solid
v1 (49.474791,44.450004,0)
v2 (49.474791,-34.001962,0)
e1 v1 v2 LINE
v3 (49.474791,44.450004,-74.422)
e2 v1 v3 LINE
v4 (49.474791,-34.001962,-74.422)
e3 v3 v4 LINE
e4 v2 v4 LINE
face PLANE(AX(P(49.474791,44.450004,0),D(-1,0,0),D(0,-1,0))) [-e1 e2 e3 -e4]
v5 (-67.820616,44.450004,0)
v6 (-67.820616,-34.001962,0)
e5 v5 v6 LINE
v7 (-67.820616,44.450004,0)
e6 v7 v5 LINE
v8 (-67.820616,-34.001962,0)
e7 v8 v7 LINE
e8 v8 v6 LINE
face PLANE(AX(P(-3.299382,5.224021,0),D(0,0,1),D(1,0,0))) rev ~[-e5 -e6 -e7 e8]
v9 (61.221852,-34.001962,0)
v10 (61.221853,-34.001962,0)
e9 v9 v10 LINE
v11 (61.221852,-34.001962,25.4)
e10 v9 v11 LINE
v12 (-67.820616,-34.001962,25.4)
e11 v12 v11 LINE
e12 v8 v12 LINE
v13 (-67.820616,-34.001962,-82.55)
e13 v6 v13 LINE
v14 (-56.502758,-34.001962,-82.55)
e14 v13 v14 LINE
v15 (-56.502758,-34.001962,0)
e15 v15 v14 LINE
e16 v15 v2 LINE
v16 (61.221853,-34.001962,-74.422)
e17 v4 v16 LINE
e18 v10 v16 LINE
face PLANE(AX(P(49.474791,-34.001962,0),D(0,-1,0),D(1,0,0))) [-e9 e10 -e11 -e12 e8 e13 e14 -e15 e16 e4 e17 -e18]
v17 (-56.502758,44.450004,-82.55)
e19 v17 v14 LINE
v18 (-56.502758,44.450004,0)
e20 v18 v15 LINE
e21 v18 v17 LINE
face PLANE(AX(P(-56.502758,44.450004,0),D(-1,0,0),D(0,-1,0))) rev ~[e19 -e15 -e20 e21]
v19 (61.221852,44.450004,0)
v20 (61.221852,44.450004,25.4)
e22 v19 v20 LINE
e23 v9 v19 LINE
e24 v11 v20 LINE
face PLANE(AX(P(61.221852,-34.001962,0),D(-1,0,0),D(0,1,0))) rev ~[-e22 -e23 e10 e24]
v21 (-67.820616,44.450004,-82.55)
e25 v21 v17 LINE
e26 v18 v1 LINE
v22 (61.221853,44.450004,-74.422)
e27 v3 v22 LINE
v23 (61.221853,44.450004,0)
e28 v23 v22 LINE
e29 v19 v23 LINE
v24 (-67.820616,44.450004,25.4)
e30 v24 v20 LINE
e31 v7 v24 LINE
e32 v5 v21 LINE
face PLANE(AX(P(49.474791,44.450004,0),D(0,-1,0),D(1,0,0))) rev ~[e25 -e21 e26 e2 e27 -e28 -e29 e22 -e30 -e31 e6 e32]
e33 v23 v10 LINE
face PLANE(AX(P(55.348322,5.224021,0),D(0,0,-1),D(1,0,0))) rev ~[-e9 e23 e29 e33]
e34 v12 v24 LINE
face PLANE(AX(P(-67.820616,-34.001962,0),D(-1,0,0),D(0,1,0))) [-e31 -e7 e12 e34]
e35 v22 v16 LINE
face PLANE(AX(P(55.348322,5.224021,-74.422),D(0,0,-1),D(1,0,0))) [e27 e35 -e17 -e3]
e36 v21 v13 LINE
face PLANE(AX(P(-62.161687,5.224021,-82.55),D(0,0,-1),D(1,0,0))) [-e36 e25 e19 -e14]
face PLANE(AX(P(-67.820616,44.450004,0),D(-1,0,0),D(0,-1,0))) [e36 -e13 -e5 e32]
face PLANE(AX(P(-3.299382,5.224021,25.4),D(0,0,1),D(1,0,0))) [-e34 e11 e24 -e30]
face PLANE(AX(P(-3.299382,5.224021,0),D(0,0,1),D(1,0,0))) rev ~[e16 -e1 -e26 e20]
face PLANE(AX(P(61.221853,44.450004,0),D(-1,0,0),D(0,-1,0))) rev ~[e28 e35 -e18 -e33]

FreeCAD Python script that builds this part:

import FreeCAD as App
import Part
import Sketcher

V = App.Vector
Q = App.Units.Quantity


def add_polygon(sketch, points):
    """Adds a closed chain of lines whose ends are joined by coincident constraints."""
    first, n = sketch.GeometryCount, len(points)
    for a, b in zip(points, points[1:] + points[:1]):
        sketch.addGeometry(Part.LineSegment(App.Vector(*a, 0), App.Vector(*b, 0)), False)
    for i in range(n):
        sketch.addConstraint(Sketcher.Constraint("Coincident", first + i, 2, first + (i + 1) % n, 1))

doc = App.newDocument("Part")
body = doc.addObject("PartDesign::Body", "Body")

# Sketch on XY plane
sketch1 = doc.addObject("Sketcher::SketchObject", "Sketch")
body.addObject(sketch1)
sketch1.AttachmentSupport = (doc.XY_Plane, [""])
sketch1.MapMode = "FlatFace"
add_polygon(sketch1, [(-67.820616, 44.450004), (-67.820616, -34.001962), (61.221852, -34.001962), (61.221852, 44.450004)])  # lines 0-3
sketch1.addConstraint(Sketcher.Constraint("Vertical", 0))
sketch1.addConstraint(Sketcher.Constraint("Horizontal", 1))
sketch1.addConstraint(Sketcher.Constraint("Vertical", 2))
sketch1.addConstraint(Sketcher.Constraint("Horizontal", 3))
sketch1.addConstraint(Sketcher.Constraint("DistanceY", -1, 1, 2, 2, Q("1.7500001 in")))
sketch1.addConstraint(Sketcher.Constraint("DistanceX", 1, 1, 1, 2, Q("129.042469 mm")))
sketch1.addConstraint(Sketcher.Constraint("DistanceY", 0, 2, 0, 1, Q("78.451965 mm")))
sketch1.addConstraint(Sketcher.Constraint("DistanceX", 0, 2, -1, 1, Q("67.820616 mm")))
pad1 = doc.addObject("PartDesign::Pad", "Pad")
body.addObject(pad1)
pad1.Profile = sketch1
pad1.Length = Q("1 in")

# Sketch on XY plane
sketch2 = doc.addObject("Sketcher::SketchObject", "Sketch001")
body.addObject(sketch2)
sketch2.AttachmentSupport = (doc.XY_Plane, [""])
sketch2.MapMode = "FlatFace"
add_polygon(sketch2, [(-67.820616, -34.001962), (-67.820616, 44.450004), (-56.502758, 44.450004), (-56.502758, -34.001962)])  # lines 0-3
sketch2.addConstraint(Sketcher.Constraint("Vertical", 0))
sketch2.addConstraint(Sketcher.Constraint("Horizontal", 1))
sketch2.addConstraint(Sketcher.Constraint("Vertical", 2))
sketch2.addConstraint(Sketcher.Constraint("Horizontal", 3))
sketch2.addConstraint(Sketcher.Constraint("DistanceY", -1, 1, 0, 2, Q("1.7500001 in")))
sketch2.addConstraint(Sketcher.Constraint("DistanceX", 1, 1, 1, 2, Q("11.317857 mm")))
sketch2.addConstraint(Sketcher.Constraint("DistanceY", 0, 1, 0, 2, Q("78.451965 mm")))
sketch2.addConstraint(Sketcher.Constraint("DistanceX", 1, 2, -1, 1, Q("56.502758 mm")))
pad2 = doc.addObject("PartDesign::Pad", "Pad001")
body.addObject(pad2)
pad2.Profile = sketch2
pad2.Length = Q("3.25 in")
pad2.Reversed = True

# Sketch on XY plane
sketch3 = doc.addObject("Sketcher::SketchObject", "Sketch002")
body.addObject(sketch3)
sketch3.AttachmentSupport = (doc.XY_Plane, [""])
sketch3.MapMode = "FlatFace"
add_polygon(sketch3, [(49.474791, -34.001962), (49.474791, 44.450004), (61.221853, 44.450004), (61.221853, -34.001962)])  # lines 0-3
sketch3.addConstraint(Sketcher.Constraint("Vertical", 0))
sketch3.addConstraint(Sketcher.Constraint("Horizontal", 1))
sketch3.addConstraint(Sketcher.Constraint("Vertical", 2))
sketch3.addConstraint(Sketcher.Constraint("Horizontal", 3))
sketch3.addConstraint(Sketcher.Constraint("DistanceY", -1, 1, 0, 2, Q("1.7500001 in")))
sketch3.addConstraint(Sketcher.Constraint("DistanceX", 1, 1, 1, 2, Q("11.747062 mm")))
sketch3.addConstraint(Sketcher.Constraint("DistanceY", 0, 1, 0, 2, Q("78.451965 mm")))
sketch3.addConstraint(Sketcher.Constraint("DistanceX", -1, 1, 0, 2, Q("49.474791 mm")))
pad3 = doc.addObject("PartDesign::Pad", "Pad002")
body.addObject(pad3)
pad3.Profile = sketch3
pad3.Length = Q("2.93 in")
pad3.Reversed = True

doc.recompute()
